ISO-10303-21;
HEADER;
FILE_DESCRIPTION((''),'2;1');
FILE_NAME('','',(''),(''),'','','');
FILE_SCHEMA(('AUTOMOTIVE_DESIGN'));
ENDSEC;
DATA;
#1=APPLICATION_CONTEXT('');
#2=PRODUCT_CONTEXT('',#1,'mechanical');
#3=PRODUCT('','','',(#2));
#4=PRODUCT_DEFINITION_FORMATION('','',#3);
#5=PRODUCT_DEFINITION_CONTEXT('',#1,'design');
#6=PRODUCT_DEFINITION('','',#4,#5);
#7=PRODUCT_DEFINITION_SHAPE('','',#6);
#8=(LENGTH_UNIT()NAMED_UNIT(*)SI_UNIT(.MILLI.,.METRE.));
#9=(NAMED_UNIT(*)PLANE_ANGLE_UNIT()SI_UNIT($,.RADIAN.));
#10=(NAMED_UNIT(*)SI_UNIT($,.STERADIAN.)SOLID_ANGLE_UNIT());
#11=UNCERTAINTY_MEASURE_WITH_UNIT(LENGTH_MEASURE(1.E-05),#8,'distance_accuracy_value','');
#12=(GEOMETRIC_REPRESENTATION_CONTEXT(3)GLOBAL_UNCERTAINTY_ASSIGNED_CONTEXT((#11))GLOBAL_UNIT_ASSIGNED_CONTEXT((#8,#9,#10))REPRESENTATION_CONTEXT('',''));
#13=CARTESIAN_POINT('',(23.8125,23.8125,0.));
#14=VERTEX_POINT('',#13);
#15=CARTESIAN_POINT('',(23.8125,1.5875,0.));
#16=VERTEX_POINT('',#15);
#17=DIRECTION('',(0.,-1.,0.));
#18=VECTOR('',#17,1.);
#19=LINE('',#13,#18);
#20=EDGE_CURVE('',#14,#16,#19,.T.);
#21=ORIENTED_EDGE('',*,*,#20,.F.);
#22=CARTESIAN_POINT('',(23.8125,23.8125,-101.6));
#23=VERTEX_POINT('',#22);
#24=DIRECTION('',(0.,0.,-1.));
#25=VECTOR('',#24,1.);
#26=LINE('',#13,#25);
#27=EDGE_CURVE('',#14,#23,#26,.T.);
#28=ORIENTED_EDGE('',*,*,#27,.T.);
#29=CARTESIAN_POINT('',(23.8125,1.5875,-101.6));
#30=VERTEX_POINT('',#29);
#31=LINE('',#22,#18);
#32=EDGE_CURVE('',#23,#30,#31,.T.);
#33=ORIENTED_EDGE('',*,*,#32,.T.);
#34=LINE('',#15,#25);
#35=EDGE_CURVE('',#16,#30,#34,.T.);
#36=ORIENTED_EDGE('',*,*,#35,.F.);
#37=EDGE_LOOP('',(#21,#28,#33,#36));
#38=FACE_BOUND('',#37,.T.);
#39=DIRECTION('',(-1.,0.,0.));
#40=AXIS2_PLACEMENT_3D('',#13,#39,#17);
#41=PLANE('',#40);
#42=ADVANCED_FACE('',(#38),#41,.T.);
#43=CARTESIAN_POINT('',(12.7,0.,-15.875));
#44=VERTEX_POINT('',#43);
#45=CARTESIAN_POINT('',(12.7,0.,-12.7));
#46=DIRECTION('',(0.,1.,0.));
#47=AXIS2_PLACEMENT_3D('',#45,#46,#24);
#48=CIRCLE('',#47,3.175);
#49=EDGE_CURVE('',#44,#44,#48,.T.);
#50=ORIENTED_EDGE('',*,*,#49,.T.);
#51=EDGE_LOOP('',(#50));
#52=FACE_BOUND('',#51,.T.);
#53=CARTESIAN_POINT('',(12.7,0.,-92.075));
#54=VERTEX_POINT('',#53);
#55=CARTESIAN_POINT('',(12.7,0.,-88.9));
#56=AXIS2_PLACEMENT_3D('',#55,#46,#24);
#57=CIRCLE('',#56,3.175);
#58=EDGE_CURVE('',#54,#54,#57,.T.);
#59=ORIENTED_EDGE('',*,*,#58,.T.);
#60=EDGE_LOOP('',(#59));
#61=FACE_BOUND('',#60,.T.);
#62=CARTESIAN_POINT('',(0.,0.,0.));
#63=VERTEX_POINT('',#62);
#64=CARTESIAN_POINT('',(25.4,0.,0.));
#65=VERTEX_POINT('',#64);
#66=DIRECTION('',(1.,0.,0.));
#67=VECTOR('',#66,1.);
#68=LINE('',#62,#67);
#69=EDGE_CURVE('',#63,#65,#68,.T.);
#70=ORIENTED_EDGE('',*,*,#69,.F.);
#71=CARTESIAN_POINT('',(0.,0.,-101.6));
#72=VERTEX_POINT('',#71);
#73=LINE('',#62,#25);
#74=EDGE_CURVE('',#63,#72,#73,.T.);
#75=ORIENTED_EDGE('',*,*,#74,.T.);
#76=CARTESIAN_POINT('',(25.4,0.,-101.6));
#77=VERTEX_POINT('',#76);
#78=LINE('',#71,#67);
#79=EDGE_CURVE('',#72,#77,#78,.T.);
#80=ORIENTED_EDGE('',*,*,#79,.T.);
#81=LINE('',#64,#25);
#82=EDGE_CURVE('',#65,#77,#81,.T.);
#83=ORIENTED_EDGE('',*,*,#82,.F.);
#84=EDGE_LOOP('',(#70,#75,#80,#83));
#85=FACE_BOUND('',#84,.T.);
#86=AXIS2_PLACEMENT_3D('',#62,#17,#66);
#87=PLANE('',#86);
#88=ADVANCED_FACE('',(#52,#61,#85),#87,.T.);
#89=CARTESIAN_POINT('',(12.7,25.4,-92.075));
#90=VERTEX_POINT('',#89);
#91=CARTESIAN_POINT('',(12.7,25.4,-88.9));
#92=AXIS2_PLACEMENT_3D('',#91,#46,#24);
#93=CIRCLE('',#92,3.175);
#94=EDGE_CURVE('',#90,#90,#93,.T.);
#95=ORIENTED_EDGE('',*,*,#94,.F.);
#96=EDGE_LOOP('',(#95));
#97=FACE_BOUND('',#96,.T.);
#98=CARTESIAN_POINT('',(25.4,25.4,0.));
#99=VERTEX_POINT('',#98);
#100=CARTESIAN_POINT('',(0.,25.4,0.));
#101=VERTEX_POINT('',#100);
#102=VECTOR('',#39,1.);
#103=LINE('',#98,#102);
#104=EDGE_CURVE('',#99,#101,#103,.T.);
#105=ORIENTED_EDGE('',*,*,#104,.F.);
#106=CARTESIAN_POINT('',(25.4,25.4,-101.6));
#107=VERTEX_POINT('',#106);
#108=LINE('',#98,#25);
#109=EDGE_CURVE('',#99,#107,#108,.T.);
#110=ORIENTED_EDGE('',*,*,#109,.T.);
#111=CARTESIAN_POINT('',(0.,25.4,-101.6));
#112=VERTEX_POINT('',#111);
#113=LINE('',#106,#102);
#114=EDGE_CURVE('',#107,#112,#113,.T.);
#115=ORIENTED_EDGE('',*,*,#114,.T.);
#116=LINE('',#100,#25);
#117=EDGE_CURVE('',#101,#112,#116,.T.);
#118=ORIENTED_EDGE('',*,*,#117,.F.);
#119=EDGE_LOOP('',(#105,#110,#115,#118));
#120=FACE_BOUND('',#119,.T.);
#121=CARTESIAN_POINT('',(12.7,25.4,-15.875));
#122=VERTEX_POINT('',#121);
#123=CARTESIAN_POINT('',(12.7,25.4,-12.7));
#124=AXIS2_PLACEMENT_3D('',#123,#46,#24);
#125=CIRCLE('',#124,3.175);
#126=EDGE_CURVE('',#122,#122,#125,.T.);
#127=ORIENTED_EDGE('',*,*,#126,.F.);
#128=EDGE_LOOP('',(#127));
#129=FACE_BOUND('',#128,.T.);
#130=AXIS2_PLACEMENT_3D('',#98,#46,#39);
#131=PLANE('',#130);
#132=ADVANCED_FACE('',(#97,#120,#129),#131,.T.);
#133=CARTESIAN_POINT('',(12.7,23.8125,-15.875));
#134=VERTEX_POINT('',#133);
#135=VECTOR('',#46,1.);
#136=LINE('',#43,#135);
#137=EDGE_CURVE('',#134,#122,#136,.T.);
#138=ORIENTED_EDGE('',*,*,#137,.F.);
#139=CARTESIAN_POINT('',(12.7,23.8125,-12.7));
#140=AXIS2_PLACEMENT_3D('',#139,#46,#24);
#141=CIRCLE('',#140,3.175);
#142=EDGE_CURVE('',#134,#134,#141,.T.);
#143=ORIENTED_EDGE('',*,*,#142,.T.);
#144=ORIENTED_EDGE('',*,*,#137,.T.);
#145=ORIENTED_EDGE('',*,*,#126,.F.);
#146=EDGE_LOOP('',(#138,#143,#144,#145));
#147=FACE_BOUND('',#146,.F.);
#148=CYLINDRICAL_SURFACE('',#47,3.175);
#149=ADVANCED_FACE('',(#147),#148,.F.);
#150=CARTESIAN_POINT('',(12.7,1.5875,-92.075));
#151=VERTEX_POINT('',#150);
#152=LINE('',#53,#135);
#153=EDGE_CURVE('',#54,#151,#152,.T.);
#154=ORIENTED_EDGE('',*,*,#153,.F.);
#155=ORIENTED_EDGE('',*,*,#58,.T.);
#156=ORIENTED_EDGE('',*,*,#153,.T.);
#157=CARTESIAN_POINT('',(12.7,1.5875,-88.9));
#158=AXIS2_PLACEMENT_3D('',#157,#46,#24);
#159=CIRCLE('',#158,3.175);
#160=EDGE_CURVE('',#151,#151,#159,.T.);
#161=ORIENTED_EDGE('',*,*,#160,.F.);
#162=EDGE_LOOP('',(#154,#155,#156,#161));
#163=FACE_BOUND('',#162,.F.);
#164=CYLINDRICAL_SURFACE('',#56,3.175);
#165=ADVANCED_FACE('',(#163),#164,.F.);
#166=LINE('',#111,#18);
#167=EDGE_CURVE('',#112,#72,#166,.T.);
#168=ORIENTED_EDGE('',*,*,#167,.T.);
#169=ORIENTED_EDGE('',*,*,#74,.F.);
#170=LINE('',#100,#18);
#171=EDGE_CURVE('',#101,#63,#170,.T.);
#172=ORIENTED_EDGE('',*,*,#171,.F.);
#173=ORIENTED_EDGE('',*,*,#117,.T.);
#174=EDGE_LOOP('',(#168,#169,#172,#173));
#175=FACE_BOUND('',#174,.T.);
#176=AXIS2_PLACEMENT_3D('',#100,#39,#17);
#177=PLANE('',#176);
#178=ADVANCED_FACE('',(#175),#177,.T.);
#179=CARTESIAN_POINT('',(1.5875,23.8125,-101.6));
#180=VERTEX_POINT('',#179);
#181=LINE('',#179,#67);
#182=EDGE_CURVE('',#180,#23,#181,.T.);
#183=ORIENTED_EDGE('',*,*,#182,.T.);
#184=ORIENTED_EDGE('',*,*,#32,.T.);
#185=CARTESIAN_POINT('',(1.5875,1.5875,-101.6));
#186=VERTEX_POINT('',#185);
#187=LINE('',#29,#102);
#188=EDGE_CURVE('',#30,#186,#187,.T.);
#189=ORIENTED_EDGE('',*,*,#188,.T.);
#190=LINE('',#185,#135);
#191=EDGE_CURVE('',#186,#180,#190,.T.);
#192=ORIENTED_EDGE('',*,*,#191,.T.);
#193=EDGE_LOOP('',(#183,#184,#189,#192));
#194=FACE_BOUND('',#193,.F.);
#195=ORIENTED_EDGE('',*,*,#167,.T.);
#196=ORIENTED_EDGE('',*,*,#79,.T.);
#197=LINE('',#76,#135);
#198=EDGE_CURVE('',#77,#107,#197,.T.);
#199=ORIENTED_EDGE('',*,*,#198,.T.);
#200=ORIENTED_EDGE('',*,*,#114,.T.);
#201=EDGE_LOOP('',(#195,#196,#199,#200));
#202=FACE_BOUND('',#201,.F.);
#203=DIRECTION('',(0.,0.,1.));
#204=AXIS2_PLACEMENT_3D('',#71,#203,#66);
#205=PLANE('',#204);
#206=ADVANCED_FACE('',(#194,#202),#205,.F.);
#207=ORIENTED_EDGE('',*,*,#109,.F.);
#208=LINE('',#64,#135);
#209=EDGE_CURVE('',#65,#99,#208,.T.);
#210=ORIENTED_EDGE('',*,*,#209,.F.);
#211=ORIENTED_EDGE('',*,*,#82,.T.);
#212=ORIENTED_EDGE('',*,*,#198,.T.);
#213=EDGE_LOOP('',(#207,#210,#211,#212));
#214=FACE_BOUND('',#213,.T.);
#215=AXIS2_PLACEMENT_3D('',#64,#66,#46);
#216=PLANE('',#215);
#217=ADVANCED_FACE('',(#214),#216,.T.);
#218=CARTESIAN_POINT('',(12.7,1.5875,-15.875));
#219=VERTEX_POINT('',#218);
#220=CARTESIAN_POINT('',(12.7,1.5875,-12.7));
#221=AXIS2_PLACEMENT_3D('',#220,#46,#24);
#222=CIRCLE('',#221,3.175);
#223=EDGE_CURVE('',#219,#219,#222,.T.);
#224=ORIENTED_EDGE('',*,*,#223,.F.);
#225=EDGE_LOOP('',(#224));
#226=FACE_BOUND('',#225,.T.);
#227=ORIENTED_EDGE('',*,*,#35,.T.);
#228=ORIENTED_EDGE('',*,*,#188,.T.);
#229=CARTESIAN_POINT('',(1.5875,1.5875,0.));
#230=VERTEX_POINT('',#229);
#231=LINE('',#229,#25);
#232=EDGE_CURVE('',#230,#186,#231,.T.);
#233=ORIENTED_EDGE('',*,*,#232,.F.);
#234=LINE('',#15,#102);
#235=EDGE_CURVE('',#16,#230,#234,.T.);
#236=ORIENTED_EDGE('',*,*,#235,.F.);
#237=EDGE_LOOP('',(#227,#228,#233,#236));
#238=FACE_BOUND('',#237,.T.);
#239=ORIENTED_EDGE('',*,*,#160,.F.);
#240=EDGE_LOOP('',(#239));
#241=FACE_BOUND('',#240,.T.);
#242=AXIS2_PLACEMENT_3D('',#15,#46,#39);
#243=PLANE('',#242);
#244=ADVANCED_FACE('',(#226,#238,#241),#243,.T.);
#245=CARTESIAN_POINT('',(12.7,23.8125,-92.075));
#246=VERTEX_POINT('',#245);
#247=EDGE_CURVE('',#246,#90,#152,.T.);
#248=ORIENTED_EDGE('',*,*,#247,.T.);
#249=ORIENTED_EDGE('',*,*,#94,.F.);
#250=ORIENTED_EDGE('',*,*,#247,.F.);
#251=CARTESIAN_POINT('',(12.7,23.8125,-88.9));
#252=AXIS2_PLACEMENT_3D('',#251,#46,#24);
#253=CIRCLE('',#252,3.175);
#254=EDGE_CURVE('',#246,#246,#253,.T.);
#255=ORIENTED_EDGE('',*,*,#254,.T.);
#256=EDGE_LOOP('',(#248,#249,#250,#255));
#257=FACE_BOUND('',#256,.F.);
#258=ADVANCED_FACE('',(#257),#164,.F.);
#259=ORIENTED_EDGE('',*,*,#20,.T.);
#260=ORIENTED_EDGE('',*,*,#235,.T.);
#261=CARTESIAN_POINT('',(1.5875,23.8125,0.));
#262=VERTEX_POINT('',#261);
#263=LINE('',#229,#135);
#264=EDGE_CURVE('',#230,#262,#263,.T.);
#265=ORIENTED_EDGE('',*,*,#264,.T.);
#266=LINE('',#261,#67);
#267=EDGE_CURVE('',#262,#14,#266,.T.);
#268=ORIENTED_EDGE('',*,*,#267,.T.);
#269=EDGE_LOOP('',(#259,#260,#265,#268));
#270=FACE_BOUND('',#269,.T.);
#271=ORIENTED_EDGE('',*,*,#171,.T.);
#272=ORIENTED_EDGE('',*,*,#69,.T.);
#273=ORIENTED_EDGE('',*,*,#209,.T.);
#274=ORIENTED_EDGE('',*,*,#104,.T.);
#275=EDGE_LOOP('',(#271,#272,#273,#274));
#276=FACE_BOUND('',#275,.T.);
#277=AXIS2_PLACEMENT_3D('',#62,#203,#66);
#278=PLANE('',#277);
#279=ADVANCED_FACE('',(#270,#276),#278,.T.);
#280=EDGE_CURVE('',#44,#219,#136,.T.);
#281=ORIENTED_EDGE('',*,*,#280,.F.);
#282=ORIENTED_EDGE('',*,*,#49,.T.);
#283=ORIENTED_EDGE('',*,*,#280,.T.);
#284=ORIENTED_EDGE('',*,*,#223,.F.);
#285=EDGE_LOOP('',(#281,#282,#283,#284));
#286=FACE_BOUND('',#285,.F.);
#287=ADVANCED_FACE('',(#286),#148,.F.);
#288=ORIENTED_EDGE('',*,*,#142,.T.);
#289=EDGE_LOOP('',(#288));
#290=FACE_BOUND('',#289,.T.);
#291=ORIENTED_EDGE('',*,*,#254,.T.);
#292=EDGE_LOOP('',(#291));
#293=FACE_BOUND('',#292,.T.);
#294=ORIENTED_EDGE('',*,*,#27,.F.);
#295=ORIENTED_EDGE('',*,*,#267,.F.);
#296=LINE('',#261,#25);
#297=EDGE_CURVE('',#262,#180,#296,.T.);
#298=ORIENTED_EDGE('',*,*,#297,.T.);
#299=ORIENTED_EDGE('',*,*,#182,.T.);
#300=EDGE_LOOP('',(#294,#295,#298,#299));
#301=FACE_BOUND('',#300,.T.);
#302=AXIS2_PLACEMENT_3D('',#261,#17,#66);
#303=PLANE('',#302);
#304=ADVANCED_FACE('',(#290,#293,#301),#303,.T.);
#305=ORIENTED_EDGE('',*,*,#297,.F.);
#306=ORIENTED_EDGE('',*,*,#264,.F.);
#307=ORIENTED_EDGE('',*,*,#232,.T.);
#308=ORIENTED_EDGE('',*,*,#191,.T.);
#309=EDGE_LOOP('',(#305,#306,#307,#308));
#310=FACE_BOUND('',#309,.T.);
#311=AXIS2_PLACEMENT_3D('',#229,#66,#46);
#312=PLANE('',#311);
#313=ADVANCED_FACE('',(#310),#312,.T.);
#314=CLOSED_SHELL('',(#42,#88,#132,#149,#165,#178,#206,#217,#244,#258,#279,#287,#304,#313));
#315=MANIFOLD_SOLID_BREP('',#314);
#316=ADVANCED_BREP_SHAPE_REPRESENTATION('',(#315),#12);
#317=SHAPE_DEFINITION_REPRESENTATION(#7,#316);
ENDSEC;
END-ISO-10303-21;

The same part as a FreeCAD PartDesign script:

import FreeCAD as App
import Part
import Sketcher

V = App.Vector
Q = App.Units.Quantity


def add_polygon(sketch, points):
    """Adds a closed chain of lines whose ends are joined by coincident constraints."""
    first, n = sketch.GeometryCount, len(points)
    for a, b in zip(points, points[1:] + points[:1]):
        sketch.addGeometry(Part.LineSegment(App.Vector(*a, 0), App.Vector(*b, 0)), False)
    for i in range(n):
        sketch.addConstraint(Sketcher.Constraint("Coincident", first + i, 2, first + (i + 1) % n, 1))

doc = App.newDocument("Part")
params = doc.addObject("Spreadsheet::Sheet", "Params")
for row, (alias, value) in enumerate([
    ("sketch1_width", "1 in"),
    ("pad1_length", "4 in"),
    ("sketch2_diameter", "0.25 in"),
    ("hole_diameter", "0.25 in"),
    ("hole_depth", "1 in"),
], start=1):
    params.set(f"A{row}", alias)
    params.set(f"B{row}", "=" + value)
    params.setAlias(f"B{row}", alias)

body = doc.addObject("PartDesign::Body", "Body")

sketch1 = body.newObject("Sketcher::SketchObject", "Sketch")
sketch1.AttachmentSupport = (doc.getObject("XY_Plane"), [""])
sketch1.MapMode = "FlatFace"
add_polygon(sketch1, [(0, 25.4), (0, 0), (25.4, 0), (25.4, 25.4)])
add_polygon(sketch1, [(1.5875, 1.5875), (1.5875, 23.8125), (23.8125, 23.8125), (23.8125, 1.5875)])
sketch1.addConstraint([
    Sketcher.Constraint("Vertical", 0),
    Sketcher.Constraint("Horizontal", 1),
    Sketcher.Constraint("Vertical", 2),
    Sketcher.Constraint("Horizontal", 3),
    Sketcher.Constraint("Vertical", 4),
    Sketcher.Constraint("Horizontal", 5),
    Sketcher.Constraint("Vertical", 6),
    Sketcher.Constraint("Horizontal", 7),
    Sketcher.Constraint("Coincident", 0, 2, -1, 1),
    Sketcher.Constraint("Equal", 3, 0),
    Sketcher.Constraint("Equal", 7, 4),
    Sketcher.Constraint("DistanceX", 1, 1, 1, 2, Q("1 in")),
    Sketcher.Constraint("DistanceX", -1, 1, 4, 2, Q("0.0625 in")),
    Sketcher.Constraint("DistanceY", -1, 1, 6, 2, Q("0.0625 in")),
    Sketcher.Constraint("DistanceY", 4, 2, 3, 2, Q("0.0625 in")),
])
sketch1.setExpression("Constraints[19]", "Params.sketch1_width")
pad1 = body.newObject("PartDesign::Pad", "Pad")
pad1.Profile = sketch1
pad1.setExpression("Length", "Params.pad1_length")
pad1.Reversed = True

sketch2 = body.newObject("Sketcher::SketchObject", "Sketch001")
sketch2.AttachmentSupport = (doc.getObject("XZ_Plane"), [""])
sketch2.MapMode = "FlatFace"
sketch2.addGeometry([
    Part.Circle(V(12.7, -12.7, 0), V(0, 0, 1), 3.175),
    Part.Circle(V(12.7, -88.9, 0), V(0, 0, 1), 3.175),
], False)
sketch2.addConstraint([
    Sketcher.Constraint("Equal", 0, 1),
    Sketcher.Constraint("Vertical", 0, 3, 1, 3),
    Sketcher.Constraint("Diameter", 0, Q("0.25 in")),
    Sketcher.Constraint("DistanceY", 1, 3, 0, 3, Q("3 in")),
    Sketcher.Constraint("DistanceX", -1, 1, 0, 3, Q("0.5 in")),
    Sketcher.Constraint("DistanceY", 0, 3, -1, 1, Q("0.5 in")),
])
sketch2.setExpression("Constraints[2]", "Params.sketch2_diameter")
doc.recompute()
hole = body.newObject("PartDesign::Hole", "Hole")
hole.Profile = sketch2
hole.ThreadType = "None"
hole.setExpression("Diameter", "Params.hole_diameter")
hole.DepthType = "Dimension"
hole.setExpression("Depth", "Params.hole_depth")
hole.DrillPoint = "Angled"
hole.DrillPointAngle = 118

doc.recompute()
